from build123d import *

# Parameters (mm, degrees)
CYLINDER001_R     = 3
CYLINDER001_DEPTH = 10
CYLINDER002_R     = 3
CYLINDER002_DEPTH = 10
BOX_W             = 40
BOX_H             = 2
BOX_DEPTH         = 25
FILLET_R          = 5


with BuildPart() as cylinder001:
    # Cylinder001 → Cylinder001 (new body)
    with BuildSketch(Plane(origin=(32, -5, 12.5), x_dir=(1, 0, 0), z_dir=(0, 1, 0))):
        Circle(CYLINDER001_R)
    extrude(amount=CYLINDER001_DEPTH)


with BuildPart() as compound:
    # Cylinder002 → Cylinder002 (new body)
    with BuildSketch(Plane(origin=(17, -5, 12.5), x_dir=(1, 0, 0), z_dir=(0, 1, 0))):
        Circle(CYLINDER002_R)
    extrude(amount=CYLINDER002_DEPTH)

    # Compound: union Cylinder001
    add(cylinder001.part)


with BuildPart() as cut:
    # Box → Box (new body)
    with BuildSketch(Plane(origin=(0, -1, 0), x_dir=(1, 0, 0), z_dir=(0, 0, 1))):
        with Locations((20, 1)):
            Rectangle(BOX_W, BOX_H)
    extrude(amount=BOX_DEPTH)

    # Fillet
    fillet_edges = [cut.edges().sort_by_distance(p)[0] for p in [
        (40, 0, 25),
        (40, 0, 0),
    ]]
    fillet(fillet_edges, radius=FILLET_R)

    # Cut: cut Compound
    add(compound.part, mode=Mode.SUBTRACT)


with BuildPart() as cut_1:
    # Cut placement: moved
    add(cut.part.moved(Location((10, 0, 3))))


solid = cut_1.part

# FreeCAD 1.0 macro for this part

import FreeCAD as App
import Part
import Sketcher

V = App.Vector


def edges_at(feature, points):
    """Names of the edges that pass closest to the given points."""
    edges = feature.Shape.Edges
    near = lambda p: min(range(len(edges)), key=lambda i: edges[i].distToShape(Part.Vertex(*p))[0])
    return sorted({f"Edge{near(p) + 1}" for p in points})


def add_polygon(sketch, points):
    """Adds a closed chain of lines whose ends are joined by coincident constraints."""
    first, n = sketch.GeometryCount, len(points)
    for a, b in zip(points, points[1:] + points[:1]):
        sketch.addGeometry(Part.LineSegment(App.Vector(*a, 0), App.Vector(*b, 0)), False)
    for i in range(n):
        sketch.addConstraint(Sketcher.Constraint("Coincident", first + i, 2, first + (i + 1) % n, 1))

doc = App.newDocument("Part")
body = doc.addObject("PartDesign::Body", "Body")

# Sketch on XZ plane
sketch1 = body.newObject("Sketcher::SketchObject", "Sketch")
sketch1.AttachmentSupport = (doc.getObject("XZ_Plane"), [""])
sketch1.MapMode = "FlatFace"
sketch1.AttachmentOffset = App.Placement(V(0, 0, 5), App.Rotation())
sketch1.addGeometry(Part.Circle(V(32, 12.5, 0), V(0, 0, 1), 3), False)
sketch1.addConstraint([
    Sketcher.Constraint("Diameter", 0, 6.0),
    Sketcher.Constraint("DistanceX", -1, 1, 0, 3, 32.0),
    Sketcher.Constraint("DistanceY", -1, 1, 0, 3, 12.5),
])
pad1 = body.newObject("PartDesign::Pad", "Pad")
pad1.Profile = sketch1
pad1.Length = 10
pad1.Reversed = True
body2 = doc.addObject("PartDesign::Body", "Body001")
body2.AllowCompound = True

# Sketch on XZ plane
sketch2 = body2.newObject("Sketcher::SketchObject", "Sketch001")
sketch2.AttachmentSupport = (doc.getObject("XZ_Plane001"), [""])
sketch2.MapMode = "FlatFace"
sketch2.AttachmentOffset = App.Placement(V(0, 0, 5), App.Rotation())
sketch2.addGeometry(Part.Circle(V(17, 12.5, 0), V(0, 0, 1), 3), False)
sketch2.addConstraint([
    Sketcher.Constraint("Diameter", 0, 6.0),
    Sketcher.Constraint("DistanceX", -1, 1, 0, 3, 17.0),
    Sketcher.Constraint("DistanceY", -1, 1, 0, 3, 12.5),
])
pad2 = body2.newObject("PartDesign::Pad", "Pad001")
pad2.Profile = sketch2
pad2.Length = 10
pad2.Reversed = True
doc.recompute()

boolean = body2.newObject("PartDesign::Boolean", "Boolean")
boolean.Type = "Fuse"
boolean.addObjects([body])
body3 = doc.addObject("PartDesign::Body", "Body002")

# Sketch on XY plane
sketch3 = body3.newObject("Sketcher::SketchObject", "Sketch002")
sketch3.AttachmentSupport = (doc.getObject("XY_Plane002"), [""])
sketch3.MapMode = "FlatFace"
add_polygon(sketch3, [(0, 1), (0, -1), (40, -1), (40, 1)])  # lines 0-3
sketch3.addConstraint([
    Sketcher.Constraint("Vertical", 0),
    Sketcher.Constraint("Horizontal", 1),
    Sketcher.Constraint("Vertical", 2),
    Sketcher.Constraint("Horizontal", 3),
    Sketcher.Constraint("Symmetric", 0, 2, 3, 2, -1, 1),
    Sketcher.Constraint("DistanceX", 1, 1, 1, 2, 40.0),
    Sketcher.Constraint("DistanceY", 0, 2, 0, 1, 2.0),
])
pad3 = body3.newObject("PartDesign::Pad", "Pad002")
pad3.Profile = sketch3
pad3.Length = 25
doc.recompute()

fillet = body3.newObject("PartDesign::Fillet", "Fillet")
fillet.Base = (pad3, edges_at(pad3, [(40, 0, 25), (40, 0, 0)]))
fillet.Radius = 5
doc.recompute()

boolean2 = body3.newObject("PartDesign::Boolean", "Boolean001")
boolean2.Type = "Cut"
boolean2.addObjects([body2])
body4 = doc.addObject("PartDesign::Body", "Body003")
doc.recompute()

body3.Placement = App.Placement(V(10, 0, 3), App.Rotation(V(0, 0, 1), 0))
boolean3 = body4.newObject("PartDesign::Boolean", "Boolean002")
boolean3.Type = "Fuse"
boolean3.addObjects([body3])

doc.recompute()
